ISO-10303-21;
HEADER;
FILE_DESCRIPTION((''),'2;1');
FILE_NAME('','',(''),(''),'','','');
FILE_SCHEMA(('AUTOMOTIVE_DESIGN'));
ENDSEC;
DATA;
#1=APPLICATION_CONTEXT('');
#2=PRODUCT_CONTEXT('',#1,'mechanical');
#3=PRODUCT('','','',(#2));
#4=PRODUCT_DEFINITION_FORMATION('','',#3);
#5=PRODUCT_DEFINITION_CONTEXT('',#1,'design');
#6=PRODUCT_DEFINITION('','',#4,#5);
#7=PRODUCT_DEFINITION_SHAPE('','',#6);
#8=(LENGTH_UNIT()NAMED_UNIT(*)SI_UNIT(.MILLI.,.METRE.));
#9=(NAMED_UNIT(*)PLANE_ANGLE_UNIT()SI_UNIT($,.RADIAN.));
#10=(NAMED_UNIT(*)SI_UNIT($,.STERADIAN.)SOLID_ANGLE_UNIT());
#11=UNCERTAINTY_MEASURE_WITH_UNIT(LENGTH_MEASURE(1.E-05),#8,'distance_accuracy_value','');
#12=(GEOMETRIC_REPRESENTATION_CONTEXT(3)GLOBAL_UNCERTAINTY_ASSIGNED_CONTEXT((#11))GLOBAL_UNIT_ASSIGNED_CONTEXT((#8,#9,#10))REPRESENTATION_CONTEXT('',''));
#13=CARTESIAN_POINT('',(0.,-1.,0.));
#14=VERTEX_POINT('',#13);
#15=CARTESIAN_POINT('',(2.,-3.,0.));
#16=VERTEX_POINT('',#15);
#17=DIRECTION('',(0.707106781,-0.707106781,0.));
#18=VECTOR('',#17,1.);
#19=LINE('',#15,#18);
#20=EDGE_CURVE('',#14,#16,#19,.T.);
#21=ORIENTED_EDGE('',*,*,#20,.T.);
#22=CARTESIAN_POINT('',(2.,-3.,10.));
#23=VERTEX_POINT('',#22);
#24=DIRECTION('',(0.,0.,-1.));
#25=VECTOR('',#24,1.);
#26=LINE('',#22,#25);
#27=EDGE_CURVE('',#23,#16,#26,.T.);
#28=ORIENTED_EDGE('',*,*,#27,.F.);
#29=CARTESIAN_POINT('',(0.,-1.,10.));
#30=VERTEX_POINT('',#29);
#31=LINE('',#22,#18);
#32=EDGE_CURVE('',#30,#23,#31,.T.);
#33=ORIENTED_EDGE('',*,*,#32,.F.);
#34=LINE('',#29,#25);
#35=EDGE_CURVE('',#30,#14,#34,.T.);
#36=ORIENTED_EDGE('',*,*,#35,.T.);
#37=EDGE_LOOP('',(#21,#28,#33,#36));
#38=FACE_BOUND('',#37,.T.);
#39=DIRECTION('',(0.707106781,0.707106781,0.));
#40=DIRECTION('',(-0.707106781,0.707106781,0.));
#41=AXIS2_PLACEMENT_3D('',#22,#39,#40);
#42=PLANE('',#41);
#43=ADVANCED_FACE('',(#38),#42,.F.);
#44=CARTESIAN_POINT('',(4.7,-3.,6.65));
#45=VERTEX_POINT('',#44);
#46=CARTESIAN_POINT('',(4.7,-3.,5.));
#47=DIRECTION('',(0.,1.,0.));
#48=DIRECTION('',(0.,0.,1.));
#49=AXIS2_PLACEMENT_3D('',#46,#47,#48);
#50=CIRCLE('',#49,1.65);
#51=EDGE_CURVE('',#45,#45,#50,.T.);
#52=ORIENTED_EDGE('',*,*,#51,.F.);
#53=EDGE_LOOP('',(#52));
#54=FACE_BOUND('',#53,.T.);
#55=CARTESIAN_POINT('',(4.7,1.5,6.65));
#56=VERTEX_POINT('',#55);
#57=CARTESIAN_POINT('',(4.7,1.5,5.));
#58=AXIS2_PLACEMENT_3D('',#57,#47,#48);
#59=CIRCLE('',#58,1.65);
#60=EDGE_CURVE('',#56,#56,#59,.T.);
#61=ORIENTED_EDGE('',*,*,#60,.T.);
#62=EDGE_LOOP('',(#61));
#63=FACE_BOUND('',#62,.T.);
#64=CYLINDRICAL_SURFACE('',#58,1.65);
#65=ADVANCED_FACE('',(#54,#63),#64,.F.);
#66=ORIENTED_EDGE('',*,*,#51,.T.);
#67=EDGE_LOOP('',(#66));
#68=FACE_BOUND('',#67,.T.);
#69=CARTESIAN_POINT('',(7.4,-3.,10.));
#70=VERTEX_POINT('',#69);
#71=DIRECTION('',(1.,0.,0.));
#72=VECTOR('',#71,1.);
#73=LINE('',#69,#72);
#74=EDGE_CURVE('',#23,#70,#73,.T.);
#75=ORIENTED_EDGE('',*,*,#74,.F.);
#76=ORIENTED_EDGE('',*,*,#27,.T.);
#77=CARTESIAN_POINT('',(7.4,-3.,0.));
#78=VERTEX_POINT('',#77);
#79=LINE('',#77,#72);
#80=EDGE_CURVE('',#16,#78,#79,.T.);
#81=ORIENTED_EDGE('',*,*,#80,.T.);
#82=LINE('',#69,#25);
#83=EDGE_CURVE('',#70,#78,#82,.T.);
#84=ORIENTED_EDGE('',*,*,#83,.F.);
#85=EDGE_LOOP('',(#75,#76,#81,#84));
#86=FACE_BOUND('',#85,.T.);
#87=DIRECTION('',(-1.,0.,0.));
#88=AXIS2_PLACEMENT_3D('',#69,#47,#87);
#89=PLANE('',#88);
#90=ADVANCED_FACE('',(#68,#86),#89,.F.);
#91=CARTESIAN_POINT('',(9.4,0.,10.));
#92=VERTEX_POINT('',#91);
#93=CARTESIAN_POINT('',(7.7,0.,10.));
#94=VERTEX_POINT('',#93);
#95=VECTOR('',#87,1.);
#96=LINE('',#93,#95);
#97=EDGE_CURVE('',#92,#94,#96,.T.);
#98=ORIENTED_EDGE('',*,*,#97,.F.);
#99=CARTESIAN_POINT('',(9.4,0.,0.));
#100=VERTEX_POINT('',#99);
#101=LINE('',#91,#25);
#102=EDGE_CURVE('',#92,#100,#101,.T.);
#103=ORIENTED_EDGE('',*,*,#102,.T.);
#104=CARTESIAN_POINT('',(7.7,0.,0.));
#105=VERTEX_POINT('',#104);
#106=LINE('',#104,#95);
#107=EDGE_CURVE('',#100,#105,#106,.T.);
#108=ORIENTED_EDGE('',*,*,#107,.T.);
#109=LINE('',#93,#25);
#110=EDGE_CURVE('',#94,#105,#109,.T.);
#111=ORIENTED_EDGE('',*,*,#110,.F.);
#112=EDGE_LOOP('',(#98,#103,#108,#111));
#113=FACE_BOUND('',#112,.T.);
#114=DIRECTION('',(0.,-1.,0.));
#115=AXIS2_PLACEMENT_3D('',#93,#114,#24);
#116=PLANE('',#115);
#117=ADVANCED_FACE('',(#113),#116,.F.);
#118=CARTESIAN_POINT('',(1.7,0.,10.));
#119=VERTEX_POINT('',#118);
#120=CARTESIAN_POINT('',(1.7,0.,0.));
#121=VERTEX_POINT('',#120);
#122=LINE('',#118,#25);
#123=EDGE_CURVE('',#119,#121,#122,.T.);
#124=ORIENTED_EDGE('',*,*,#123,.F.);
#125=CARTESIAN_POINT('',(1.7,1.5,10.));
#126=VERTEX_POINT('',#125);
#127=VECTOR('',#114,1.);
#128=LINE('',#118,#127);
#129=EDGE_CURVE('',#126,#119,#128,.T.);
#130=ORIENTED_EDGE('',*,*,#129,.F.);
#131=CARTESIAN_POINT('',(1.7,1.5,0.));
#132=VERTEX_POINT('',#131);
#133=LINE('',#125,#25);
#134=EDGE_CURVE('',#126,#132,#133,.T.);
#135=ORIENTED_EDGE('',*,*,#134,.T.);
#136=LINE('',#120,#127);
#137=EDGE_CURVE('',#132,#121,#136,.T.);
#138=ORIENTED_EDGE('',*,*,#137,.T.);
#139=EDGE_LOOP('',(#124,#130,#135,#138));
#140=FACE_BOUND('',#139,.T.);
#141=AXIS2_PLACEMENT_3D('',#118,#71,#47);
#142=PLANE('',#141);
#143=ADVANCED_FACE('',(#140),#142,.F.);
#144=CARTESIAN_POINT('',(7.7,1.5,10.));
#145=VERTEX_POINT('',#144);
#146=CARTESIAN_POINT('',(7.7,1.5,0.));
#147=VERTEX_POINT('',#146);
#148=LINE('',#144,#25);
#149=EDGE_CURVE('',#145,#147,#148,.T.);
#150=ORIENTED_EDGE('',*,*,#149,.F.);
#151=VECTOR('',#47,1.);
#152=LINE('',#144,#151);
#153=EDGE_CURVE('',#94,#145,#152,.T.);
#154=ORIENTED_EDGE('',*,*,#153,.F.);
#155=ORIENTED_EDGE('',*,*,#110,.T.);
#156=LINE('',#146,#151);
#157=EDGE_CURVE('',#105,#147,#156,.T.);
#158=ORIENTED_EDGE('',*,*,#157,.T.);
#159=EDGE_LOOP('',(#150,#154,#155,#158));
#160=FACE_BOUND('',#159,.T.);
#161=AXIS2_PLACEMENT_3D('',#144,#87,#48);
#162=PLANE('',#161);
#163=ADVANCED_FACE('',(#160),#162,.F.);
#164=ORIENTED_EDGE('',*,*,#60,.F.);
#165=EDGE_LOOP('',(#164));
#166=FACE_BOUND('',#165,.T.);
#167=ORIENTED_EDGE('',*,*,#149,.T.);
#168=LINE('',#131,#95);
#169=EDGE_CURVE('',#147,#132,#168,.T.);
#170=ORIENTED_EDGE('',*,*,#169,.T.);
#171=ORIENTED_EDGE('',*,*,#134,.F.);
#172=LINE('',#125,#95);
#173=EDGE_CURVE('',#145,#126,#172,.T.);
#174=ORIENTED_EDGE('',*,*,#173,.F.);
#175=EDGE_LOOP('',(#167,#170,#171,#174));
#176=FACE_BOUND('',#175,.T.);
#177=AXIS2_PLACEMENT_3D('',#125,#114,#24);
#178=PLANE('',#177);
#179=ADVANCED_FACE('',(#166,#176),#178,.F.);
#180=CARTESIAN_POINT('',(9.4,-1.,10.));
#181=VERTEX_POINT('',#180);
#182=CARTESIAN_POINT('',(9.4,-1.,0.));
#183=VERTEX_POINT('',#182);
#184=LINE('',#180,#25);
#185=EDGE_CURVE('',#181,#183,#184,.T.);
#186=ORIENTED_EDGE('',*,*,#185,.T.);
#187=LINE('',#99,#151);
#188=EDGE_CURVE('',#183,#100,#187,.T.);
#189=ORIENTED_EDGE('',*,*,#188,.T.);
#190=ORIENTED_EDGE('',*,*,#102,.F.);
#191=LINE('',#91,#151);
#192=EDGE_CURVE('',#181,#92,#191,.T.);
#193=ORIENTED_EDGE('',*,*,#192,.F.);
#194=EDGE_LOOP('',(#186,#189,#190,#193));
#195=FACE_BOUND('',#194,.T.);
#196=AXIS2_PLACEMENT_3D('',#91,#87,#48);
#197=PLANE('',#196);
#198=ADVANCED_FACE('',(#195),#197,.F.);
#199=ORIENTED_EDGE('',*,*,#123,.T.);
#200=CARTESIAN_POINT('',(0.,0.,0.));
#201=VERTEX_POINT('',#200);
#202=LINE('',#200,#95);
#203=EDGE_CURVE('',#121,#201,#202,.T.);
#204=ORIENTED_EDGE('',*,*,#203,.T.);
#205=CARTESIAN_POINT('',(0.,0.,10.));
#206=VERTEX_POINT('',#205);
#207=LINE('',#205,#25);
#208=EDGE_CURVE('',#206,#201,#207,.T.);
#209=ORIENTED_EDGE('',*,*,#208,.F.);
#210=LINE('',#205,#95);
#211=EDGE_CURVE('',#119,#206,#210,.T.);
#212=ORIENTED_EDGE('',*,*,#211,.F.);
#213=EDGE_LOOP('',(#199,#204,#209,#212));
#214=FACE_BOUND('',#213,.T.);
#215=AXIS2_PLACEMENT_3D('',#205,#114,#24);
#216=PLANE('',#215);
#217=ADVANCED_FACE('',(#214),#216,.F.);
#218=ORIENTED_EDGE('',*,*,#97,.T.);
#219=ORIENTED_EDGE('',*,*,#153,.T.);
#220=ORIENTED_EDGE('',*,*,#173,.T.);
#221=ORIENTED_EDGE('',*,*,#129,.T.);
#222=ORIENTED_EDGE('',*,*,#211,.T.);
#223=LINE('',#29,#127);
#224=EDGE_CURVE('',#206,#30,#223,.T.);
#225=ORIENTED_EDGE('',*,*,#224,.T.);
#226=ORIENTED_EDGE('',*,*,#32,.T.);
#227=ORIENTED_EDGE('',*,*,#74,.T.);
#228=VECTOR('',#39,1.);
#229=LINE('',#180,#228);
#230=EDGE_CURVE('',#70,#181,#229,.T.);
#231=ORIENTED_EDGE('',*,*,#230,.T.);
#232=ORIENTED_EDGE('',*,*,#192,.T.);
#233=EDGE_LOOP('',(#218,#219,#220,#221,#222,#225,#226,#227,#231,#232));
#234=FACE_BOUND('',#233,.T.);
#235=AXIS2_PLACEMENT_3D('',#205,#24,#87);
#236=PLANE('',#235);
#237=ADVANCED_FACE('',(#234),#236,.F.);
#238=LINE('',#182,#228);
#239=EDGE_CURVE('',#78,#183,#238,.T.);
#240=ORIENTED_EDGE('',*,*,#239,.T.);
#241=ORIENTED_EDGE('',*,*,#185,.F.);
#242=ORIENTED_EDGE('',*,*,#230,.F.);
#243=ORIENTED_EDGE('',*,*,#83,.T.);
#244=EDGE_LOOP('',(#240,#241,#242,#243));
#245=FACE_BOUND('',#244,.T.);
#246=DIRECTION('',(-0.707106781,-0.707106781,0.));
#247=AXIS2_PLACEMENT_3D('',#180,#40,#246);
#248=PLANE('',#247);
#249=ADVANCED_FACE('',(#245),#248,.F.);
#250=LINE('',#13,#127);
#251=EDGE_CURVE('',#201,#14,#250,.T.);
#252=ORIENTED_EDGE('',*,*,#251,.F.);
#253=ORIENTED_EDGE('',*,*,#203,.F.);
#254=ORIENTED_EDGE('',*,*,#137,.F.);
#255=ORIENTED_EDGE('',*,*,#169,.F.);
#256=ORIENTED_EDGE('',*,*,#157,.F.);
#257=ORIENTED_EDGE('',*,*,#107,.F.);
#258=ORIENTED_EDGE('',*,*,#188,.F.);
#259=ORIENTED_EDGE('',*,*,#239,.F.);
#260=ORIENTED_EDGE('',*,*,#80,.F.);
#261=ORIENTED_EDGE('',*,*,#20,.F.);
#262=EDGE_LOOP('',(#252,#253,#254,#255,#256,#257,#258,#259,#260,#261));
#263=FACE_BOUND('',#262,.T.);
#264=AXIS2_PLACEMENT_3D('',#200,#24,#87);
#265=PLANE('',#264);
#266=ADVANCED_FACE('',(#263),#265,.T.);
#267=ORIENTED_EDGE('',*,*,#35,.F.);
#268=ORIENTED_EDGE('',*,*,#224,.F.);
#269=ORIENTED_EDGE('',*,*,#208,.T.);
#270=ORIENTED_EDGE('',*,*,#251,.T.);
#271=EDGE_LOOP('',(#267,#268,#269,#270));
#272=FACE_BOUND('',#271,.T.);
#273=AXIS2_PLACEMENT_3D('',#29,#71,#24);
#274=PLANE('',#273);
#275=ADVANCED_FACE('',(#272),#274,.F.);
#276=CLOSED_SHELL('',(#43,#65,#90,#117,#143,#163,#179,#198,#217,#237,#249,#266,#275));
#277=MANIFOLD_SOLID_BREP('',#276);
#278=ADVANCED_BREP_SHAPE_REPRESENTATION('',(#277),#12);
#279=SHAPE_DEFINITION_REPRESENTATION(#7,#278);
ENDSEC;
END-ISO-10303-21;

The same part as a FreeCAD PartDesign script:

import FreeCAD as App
import Part
import Sketcher
Q = App.Units.Quantity


def add_polygon(sketch, points):
    """Adds a closed chain of lines whose ends are joined by coincident constraints."""
    first, n = sketch.GeometryCount, len(points)
    for a, b in zip(points, points[1:] + points[:1]):
        sketch.addGeometry(Part.LineSegment(App.Vector(*a, 0), App.Vector(*b, 0)), False)
    for i in range(n):
        sketch.addConstraint(Sketcher.Constraint("Coincident", first + i, 2, first + (i + 1) % n, 1))

doc = App.newDocument("Part")
params = doc.addObject("Spreadsheet::Sheet", "Params")
for row, (alias, value) in enumerate([
    ("sketch1_width", "6 mm"),
    ("sketch1_height", "1 mm"),
    ("sketch1_width2", "1.7 mm"),
    ("sketch1_width3", "5.4 mm"),
    ("sketch1_height2", "1.5 mm"),
    ("pad1_length", "10 mm"),
    ("sketch2_diameter", "3.3 mm"),
    ("hole_diameter", "3.3 mm"),
], start=1):
    params.set(f"A{row}", alias)
    params.set(f"B{row}", "=" + value)
    params.setAlias(f"B{row}", alias)

body = doc.addObject("PartDesign::Body", "Body")

# Sketch on XY plane
sketch1 = body.newObject("Sketcher::SketchObject", "Sketch")
sketch1.AttachmentSupport = (doc.getObject("XY_Plane"), [""])
sketch1.MapMode = "FlatFace"
add_polygon(sketch1, [(1.7, 0), (0, 0), (0, -1), (2, -3), (7.4, -3), (9.4, -1), (9.4, 0), (7.7, 0), (7.7, 1.5), (1.7, 1.5)])  # lines 0-9
sketch1.addConstraint(Sketcher.Constraint("Horizontal", 0))
sketch1.addConstraint(Sketcher.Constraint("Vertical", 1))
sketch1.addConstraint(Sketcher.Constraint("Horizontal", 3))
sketch1.addConstraint(Sketcher.Constraint("Vertical", 5))
sketch1.addConstraint(Sketcher.Constraint("Horizontal", 6))
sketch1.addConstraint(Sketcher.Constraint("Vertical", 7))
sketch1.addConstraint(Sketcher.Constraint("Horizontal", 8))
sketch1.addConstraint(Sketcher.Constraint("Vertical", 9))
sketch1.addConstraint(Sketcher.Constraint("Coincident", 0, 2, -1, 1))
sketch1.addConstraint(Sketcher.Constraint("PointOnObject", 5, 2, -1))
sketch1.addConstraint(Sketcher.Constraint("Perpendicular", 2, 4))
sketch1.addConstraint(Sketcher.Constraint("Horizontal", 1, 2, 4, 2))
sketch1.addConstraint(Sketcher.Constraint("Equal", 0, 6))
sketch1.addConstraint(Sketcher.Constraint("Equal", 2, 4))
sketch1.addConstraint(Sketcher.Constraint("DistanceX", 8, 2, 8, 1, Q("6 mm")))
sketch1.addConstraint(Sketcher.Constraint("DistanceY", 1, 2, 1, 1, Q("1 mm")))
sketch1.addConstraint(Sketcher.Constraint("DistanceX", 0, 2, 0, 1, Q("1.7 mm")))
sketch1.addConstraint(Sketcher.Constraint("DistanceX", 3, 1, 3, 2, Q("5.4 mm")))
sketch1.addConstraint(Sketcher.Constraint("DistanceY", 7, 1, 7, 2, Q("1.5 mm")))
sketch1.setExpression("Constraints[24]", "Params.sketch1_width")
sketch1.setExpression("Constraints[25]", "Params.sketch1_height")
sketch1.setExpression("Constraints[26]", "Params.sketch1_width2")
sketch1.setExpression("Constraints[27]", "Params.sketch1_width3")
sketch1.setExpression("Constraints[28]", "Params.sketch1_height2")
pad1 = body.newObject("PartDesign::Pad", "Pad")
pad1.Profile = sketch1
pad1.setExpression("Length", "Params.pad1_length")

# Sketch on XZ plane
sketch2 = body.newObject("Sketcher::SketchObject", "Sketch001")
sketch2.AttachmentSupport = (doc.getObject("XZ_Plane"), [""])
sketch2.MapMode = "FlatFace"
sketch2.AttachmentOffset = App.Placement(App.Vector(0, 0, -1.5), App.Rotation())
sketch2.addGeometry(Part.Circle(App.Vector(4.7, 5, 0), App.Vector(0, 0, 1), 1.6), False)
sketch2.addConstraint(Sketcher.Constraint("Diameter", 0, Q("3.3 mm")))
sketch2.addConstraint(Sketcher.Constraint("DistanceY", -1, 1, 0, 3, Q("5 mm")))
sketch2.addConstraint(Sketcher.Constraint("DistanceX", -1, 1, 0, 3, Q("4.7 mm")))
sketch2.setExpression("Constraints[0]", "Params.sketch2_diameter")
doc.recompute()
hole = body.newObject("PartDesign::Hole", "Hole")
hole.Profile = sketch2
hole.ThreadType = "None"
hole.setExpression("Diameter", "Params.hole_diameter")
hole.DepthType = "ThroughAll"
hole.Reversed = True

doc.recompute()
